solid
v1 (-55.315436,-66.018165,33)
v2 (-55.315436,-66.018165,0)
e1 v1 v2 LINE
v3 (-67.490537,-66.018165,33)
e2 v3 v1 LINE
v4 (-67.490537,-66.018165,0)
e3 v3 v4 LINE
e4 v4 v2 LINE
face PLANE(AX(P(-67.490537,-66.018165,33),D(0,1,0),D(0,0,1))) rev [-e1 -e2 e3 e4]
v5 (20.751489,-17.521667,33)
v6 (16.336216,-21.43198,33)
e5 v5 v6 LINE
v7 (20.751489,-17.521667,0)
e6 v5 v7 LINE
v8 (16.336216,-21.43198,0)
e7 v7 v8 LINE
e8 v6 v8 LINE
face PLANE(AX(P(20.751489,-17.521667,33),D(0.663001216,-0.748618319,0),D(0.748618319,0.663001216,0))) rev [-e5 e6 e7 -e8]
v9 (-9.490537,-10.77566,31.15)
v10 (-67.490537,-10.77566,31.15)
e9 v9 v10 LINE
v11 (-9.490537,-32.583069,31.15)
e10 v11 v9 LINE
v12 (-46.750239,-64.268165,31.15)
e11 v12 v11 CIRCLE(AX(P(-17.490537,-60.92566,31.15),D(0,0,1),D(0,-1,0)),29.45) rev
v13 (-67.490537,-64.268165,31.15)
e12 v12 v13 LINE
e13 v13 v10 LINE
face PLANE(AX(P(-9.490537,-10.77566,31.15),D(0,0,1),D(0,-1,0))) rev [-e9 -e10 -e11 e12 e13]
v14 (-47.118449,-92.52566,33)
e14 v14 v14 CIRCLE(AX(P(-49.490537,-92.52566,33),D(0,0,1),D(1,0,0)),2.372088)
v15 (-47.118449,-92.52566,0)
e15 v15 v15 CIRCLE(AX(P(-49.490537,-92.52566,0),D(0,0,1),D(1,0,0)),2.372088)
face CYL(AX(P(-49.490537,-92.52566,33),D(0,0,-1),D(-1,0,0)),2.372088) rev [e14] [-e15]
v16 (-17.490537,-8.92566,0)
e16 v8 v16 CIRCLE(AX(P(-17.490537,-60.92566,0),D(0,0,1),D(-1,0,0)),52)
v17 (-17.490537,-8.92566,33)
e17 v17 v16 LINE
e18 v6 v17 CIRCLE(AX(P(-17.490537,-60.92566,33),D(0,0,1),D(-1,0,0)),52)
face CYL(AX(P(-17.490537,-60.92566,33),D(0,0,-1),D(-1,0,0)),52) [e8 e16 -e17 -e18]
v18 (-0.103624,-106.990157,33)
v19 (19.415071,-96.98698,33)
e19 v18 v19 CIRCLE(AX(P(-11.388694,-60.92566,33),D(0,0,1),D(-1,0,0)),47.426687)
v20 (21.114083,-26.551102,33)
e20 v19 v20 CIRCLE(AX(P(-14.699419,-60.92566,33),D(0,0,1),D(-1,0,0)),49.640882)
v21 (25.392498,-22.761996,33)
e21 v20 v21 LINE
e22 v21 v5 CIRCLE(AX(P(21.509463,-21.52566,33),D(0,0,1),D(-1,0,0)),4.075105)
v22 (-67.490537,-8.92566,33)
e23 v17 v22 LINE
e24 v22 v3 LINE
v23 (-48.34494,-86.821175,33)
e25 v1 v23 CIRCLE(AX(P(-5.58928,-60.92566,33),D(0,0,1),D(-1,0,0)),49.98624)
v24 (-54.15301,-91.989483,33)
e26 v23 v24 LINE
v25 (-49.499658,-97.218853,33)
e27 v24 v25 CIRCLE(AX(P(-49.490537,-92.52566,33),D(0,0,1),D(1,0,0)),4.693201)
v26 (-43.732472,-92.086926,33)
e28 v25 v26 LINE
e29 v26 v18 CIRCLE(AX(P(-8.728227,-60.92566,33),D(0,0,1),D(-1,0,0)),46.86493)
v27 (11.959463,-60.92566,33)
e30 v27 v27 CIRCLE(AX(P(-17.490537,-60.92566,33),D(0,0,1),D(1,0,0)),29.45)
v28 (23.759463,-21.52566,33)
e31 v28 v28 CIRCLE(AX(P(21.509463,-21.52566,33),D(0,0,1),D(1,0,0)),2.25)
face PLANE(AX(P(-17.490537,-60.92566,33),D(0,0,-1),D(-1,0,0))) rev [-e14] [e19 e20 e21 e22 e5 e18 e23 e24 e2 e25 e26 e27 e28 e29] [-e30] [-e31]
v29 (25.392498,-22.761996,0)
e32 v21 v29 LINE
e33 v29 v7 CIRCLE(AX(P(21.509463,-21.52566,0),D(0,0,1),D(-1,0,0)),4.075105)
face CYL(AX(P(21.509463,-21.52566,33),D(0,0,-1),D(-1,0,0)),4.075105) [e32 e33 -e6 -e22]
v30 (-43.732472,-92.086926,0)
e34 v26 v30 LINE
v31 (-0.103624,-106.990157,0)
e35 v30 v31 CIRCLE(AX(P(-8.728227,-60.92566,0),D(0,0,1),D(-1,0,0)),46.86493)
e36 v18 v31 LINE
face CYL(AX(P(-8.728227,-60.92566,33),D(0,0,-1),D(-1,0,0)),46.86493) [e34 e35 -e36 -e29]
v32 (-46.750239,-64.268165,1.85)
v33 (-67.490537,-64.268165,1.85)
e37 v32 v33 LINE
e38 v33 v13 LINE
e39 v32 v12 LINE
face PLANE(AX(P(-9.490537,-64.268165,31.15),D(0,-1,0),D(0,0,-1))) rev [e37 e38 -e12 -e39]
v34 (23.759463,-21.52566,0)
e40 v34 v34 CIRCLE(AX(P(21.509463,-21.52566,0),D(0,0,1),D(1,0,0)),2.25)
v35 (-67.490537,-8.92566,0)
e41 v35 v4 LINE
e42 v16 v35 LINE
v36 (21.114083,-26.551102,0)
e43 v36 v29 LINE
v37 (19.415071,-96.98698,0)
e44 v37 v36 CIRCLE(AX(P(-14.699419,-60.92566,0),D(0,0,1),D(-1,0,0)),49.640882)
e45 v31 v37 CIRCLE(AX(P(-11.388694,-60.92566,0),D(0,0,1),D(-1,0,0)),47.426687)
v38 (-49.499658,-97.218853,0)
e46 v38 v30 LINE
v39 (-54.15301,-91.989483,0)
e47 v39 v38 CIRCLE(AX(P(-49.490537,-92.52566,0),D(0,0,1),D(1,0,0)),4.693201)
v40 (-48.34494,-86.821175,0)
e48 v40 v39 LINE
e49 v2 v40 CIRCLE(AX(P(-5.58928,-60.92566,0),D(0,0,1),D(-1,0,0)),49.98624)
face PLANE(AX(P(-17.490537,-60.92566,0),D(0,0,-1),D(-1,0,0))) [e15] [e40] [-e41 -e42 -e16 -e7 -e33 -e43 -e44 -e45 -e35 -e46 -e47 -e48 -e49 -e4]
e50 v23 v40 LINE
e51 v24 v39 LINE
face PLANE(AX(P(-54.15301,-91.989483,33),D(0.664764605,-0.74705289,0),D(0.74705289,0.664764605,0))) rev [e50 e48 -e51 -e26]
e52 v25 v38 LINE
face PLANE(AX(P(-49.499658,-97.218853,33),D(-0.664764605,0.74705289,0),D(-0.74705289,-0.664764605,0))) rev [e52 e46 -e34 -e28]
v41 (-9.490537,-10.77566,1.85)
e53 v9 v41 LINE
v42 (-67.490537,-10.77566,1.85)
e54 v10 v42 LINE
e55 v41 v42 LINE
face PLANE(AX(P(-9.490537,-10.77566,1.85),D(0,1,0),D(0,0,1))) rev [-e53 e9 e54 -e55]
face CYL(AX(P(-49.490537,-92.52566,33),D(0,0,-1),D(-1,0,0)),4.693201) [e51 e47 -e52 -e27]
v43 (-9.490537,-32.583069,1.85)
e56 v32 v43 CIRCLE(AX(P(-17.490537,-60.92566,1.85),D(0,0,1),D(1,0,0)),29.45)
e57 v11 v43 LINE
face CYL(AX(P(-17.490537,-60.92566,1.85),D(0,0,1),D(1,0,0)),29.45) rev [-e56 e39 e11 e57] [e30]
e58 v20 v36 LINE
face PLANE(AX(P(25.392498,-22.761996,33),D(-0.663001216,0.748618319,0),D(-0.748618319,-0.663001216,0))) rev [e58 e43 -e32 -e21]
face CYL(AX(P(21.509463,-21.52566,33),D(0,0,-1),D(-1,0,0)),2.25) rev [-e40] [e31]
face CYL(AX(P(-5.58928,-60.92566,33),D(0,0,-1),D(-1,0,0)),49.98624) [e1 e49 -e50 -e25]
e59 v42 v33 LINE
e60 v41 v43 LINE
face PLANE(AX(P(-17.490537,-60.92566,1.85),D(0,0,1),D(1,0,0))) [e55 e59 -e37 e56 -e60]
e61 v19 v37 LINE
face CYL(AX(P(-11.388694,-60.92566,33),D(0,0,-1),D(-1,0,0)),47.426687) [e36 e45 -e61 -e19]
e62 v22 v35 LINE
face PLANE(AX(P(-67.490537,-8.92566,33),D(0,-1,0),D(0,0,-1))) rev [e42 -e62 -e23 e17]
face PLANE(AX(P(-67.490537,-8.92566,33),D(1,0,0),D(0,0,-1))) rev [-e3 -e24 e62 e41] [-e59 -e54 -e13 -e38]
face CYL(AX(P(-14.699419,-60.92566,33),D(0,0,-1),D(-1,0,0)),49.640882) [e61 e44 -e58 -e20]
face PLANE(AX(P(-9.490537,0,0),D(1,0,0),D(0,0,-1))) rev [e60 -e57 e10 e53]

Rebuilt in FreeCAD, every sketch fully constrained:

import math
import FreeCAD as App
import Part
import Sketcher

V = App.Vector


def add_polygon(sketch, points):
    """Adds a closed chain of lines whose ends are joined by coincident constraints."""
    first, n = sketch.GeometryCount, len(points)
    for a, b in zip(points, points[1:] + points[:1]):
        sketch.addGeometry(Part.LineSegment(App.Vector(*a, 0), App.Vector(*b, 0)), False)
    for i in range(n):
        sketch.addConstraint(Sketcher.Constraint("Coincident", first + i, 2, first + (i + 1) % n, 1))

doc = App.newDocument("Part")
params = doc.addObject("Spreadsheet::Sheet", "Params")
for row, (alias, value) in enumerate([
    ("sketch1_radius", "52 mm"),
    ("sketch1_diameter", "4.5 mm"),
    ("sketch1_width", "50 mm"),
    ("pad1_length", "33 mm"),
    ("sketch2_diameter", "58.9 mm"),
    ("pocket1_length", "31.15 mm"),
    ("sketch3_height", "29.3 mm"),
    ("pocket2_length", "58 mm"),
], start=1):
    params.set(f"A{row}", alias)
    params.set(f"B{row}", "=" + value)
    params.setAlias(f"B{row}", alias)

body = doc.addObject("PartDesign::Body", "Body")

# Sketch on XY plane
sketch1 = body.newObject("Sketcher::SketchObject", "Sketch")
sketch1.AttachmentSupport = (doc.getObject("XY_Plane"), [""])
sketch1.MapMode = "FlatFace"
sketch1.addGeometry([
    Part.LineSegment(V(-67.5, -8.9, 0), V(-67.5, -66, 0)),  # 0
    Part.LineSegment(V(-67.5, -66, 0), V(-55.3, -66, 0)),  # 1
    Part.ArcOfCircle(Part.Circle(V(-5.6, -60.9, 0), V(0, 0, 1), 50), math.radians(-174), math.radians(-149)),  # 2
    Part.LineSegment(V(-48.3, -86.8, 0), V(-54.2, -92, 0)),  # 3
    Part.ArcOfCircle(Part.Circle(V(-49.5, -92.5, 0), V(0, 0, 1), 4.7), math.radians(173), math.radians(270)),  # 4
    Part.LineSegment(V(-49.5, -97.2, 0), V(-43.7, -92.1, 0)),  # 5
    Part.ArcOfCircle(Part.Circle(V(-8.7, -60.9, 0), V(0, 0, 1), 46.9), math.radians(-138), math.radians(-79)),  # 6
    Part.ArcOfCircle(Part.Circle(V(-11.4, -60.9, 0), V(0, 0, 1), 47.4), math.radians(-76), math.radians(-49)),  # 7
    Part.ArcOfCircle(Part.Circle(V(-14.7, -60.9, 0), V(0, 0, 1), 49.6), math.radians(-47), math.radians(44)),  # 8
    Part.LineSegment(V(21.1, -26.6, 0), V(25.4, -22.8, 0)),  # 9
    Part.ArcOfCircle(Part.Circle(V(21.5, -21.5, 0), V(0, 0, 1), 4.1), math.radians(-18), math.radians(101)),  # 10
    Part.LineSegment(V(20.8, -17.5, 0), V(16.3, -21.4, 0)),  # 11
    Part.ArcOfCircle(Part.Circle(V(-17.5, -60.9, 0), V(0, 0, 1), 52), math.radians(49), math.radians(90)),  # 12
    Part.LineSegment(V(-17.5, -8.9, 0), V(-67.5, -8.9, 0)),  # 13
    Part.Circle(V(-49.5, -92.5, 0), V(0, 0, 1), 2.4),  # 14
    Part.Circle(V(21.5, -21.5, 0), V(0, 0, 1), 2.2),  # 15
], False)
sketch1.addConstraint([
    Sketcher.Constraint("Coincident", 0, 2, 1, 1),
    Sketcher.Constraint("Coincident", 1, 2, 2, 1),
    Sketcher.Constraint("Coincident", 2, 2, 3, 1),
    Sketcher.Constraint("Coincident", 3, 2, 4, 1),
    Sketcher.Constraint("Coincident", 4, 2, 5, 1),
    Sketcher.Constraint("Coincident", 5, 2, 6, 1),
    Sketcher.Constraint("Coincident", 6, 2, 7, 1),
    Sketcher.Constraint("Coincident", 7, 2, 8, 1),
    Sketcher.Constraint("Coincident", 8, 2, 9, 1),
    Sketcher.Constraint("Coincident", 9, 2, 10, 1),
    Sketcher.Constraint("Coincident", 10, 2, 11, 1),
    Sketcher.Constraint("Coincident", 11, 2, 12, 1),
    Sketcher.Constraint("Tangent", 12, 2, 13, 1),
    Sketcher.Constraint("Coincident", 13, 2, 0, 1),
    Sketcher.Constraint("Vertical", 0),
    Sketcher.Constraint("Horizontal", 1),
    Sketcher.Constraint("Horizontal", 13),
    Sketcher.Constraint("Coincident", 14, 3, 4, 3),
    Sketcher.Constraint("Coincident", 15, 3, 10, 3),
    Sketcher.Constraint("Parallel", 3, 5),
    Sketcher.Constraint("Parallel", 9, 11),
    Sketcher.Constraint("Horizontal", 2, 3, 6, 3),
    Sketcher.Constraint("Horizontal", 6, 3, 7, 3),
    Sketcher.Constraint("Horizontal", 7, 3, 8, 3),
    Sketcher.Constraint("Horizontal", 8, 3, 12, 3),
    Sketcher.Constraint("Radius", 12, 52.0),
    Sketcher.Constraint("Diameter", 15, 4.5),
    Sketcher.Constraint("DistanceX", 13, 2, 13, 1, 50.0),
    Sketcher.Constraint("DistanceX", 4, 3, 10, 3, 71.0),
    Sketcher.Constraint("DistanceY", 4, 3, 10, 3, 71.0),
    Sketcher.Constraint("DistanceX", 4, 3, 12, 3, 32.0),
    Sketcher.Constraint("Radius", 4, 4.693201),
    Sketcher.Constraint("DistanceY", 4, 3, 2, 3, 31.6),
    Sketcher.Constraint("Radius", 2, 49.98624),
    Sketcher.Constraint("Radius", 6, 46.86493),
    Sketcher.Constraint("Diameter", 14, 4.744177),
    Sketcher.Constraint("DistanceX", 1, 1, 1, 2, 12.175101),
    Sketcher.Constraint("Radius", 7, 47.426687),
    Sketcher.Constraint("Radius", 8, 49.640882),
    Sketcher.Constraint("Radius", 10, 4.075105),
    Sketcher.Constraint("DistanceY", 8, 2, -1, 1, 26.551102),
    Sketcher.Constraint("Distance", 9, 5.715082),
    Sketcher.Constraint("DistanceY", 0, 2, 0, 1, 57.092504),
    Sketcher.Constraint("DistanceX", 2, 3, -1, 1, 5.58928),
    Sketcher.Constraint("DistanceY", 2, 3, -1, 1, 60.92566),
    Sketcher.Constraint("DistanceX", 8, 3, -1, 1, 14.699419),
    Sketcher.Constraint("DistanceX", 2, 2, -1, 1, 48.34494),
    Sketcher.Constraint("DistanceX", 3, 2, -1, 1, 54.15301),
    Sketcher.Constraint("DistanceX", -1, 1, 7, 2, 19.415071),
    Sketcher.Constraint("DistanceX", -1, 1, 10, 2, 20.751489),
    Sketcher.Constraint("DistanceX", 4, 3, 6, 3, 40.76231),
    Sketcher.Constraint("DistanceX", 4, 2, 4, 3, 0.009121),
])
sketch1.setExpression("Constraints[25]", "Params.sketch1_radius")
sketch1.setExpression("Constraints[26]", "Params.sketch1_diameter")
sketch1.setExpression("Constraints[27]", "Params.sketch1_width")
pad1 = body.newObject("PartDesign::Pad", "Pad")
pad1.Profile = sketch1
pad1.setExpression("Length", "Params.pad1_length")

# Sketch on XY plane
sketch2 = body.newObject("Sketcher::SketchObject", "Sketch001")
sketch2.AttachmentSupport = (doc.getObject("XY_Plane"), [""])
sketch2.MapMode = "FlatFace"
sketch2.AttachmentOffset = App.Placement(V(0, 0, 33), App.Rotation())
sketch2.addGeometry(Part.Circle(V(-17, -61, 0), V(0, 0, 1), 29), False)
sketch2.addConstraint([
    Sketcher.Constraint("Diameter", 0, 58.9),
    Sketcher.Constraint("DistanceY", 0, 3, -1, 1, 60.92566),
    Sketcher.Constraint("DistanceX", 0, 3, -1, 1, 17.490537),
])
sketch2.setExpression("Constraints[0]", "Params.sketch2_diameter")
pocket1 = body.newObject("PartDesign::Pocket", "Pocket")
pocket1.Profile = sketch2
pocket1.setExpression("Length", "Params.pocket1_length")

# Sketch on YZ plane
sketch3 = body.newObject("Sketcher::SketchObject", "Sketch002")
sketch3.AttachmentSupport = (doc.getObject("YZ_Plane"), [""])
sketch3.MapMode = "FlatFace"
sketch3.AttachmentOffset = App.Placement(V(0, 0, -67.490537), App.Rotation())
add_polygon(sketch3, [(-11, 2), (-64, 2), (-64, 31), (-11, 31)])  # lines 0-3
sketch3.addConstraint([
    Sketcher.Constraint("Horizontal", 0),
    Sketcher.Constraint("Vertical", 1),
    Sketcher.Constraint("Horizontal", 2),
    Sketcher.Constraint("Vertical", 3),
    Sketcher.Constraint("DistanceY", 1, 1, 1, 2, 29.3),
    Sketcher.Constraint("DistanceY", -1, 1, 0, 2, 1.85),
    Sketcher.Constraint("DistanceX", 0, 2, 0, 1, 53.492504),
    Sketcher.Constraint("DistanceX", 2, 2, -1, 1, 10.77566),
])
sketch3.setExpression("Constraints[8]", "Params.sketch3_height")
pocket2 = body.newObject("PartDesign::Pocket", "Pocket001")
pocket2.Profile = sketch3
pocket2.setExpression("Length", "Params.pocket2_length")
pocket2.Reversed = True

doc.recompute()
